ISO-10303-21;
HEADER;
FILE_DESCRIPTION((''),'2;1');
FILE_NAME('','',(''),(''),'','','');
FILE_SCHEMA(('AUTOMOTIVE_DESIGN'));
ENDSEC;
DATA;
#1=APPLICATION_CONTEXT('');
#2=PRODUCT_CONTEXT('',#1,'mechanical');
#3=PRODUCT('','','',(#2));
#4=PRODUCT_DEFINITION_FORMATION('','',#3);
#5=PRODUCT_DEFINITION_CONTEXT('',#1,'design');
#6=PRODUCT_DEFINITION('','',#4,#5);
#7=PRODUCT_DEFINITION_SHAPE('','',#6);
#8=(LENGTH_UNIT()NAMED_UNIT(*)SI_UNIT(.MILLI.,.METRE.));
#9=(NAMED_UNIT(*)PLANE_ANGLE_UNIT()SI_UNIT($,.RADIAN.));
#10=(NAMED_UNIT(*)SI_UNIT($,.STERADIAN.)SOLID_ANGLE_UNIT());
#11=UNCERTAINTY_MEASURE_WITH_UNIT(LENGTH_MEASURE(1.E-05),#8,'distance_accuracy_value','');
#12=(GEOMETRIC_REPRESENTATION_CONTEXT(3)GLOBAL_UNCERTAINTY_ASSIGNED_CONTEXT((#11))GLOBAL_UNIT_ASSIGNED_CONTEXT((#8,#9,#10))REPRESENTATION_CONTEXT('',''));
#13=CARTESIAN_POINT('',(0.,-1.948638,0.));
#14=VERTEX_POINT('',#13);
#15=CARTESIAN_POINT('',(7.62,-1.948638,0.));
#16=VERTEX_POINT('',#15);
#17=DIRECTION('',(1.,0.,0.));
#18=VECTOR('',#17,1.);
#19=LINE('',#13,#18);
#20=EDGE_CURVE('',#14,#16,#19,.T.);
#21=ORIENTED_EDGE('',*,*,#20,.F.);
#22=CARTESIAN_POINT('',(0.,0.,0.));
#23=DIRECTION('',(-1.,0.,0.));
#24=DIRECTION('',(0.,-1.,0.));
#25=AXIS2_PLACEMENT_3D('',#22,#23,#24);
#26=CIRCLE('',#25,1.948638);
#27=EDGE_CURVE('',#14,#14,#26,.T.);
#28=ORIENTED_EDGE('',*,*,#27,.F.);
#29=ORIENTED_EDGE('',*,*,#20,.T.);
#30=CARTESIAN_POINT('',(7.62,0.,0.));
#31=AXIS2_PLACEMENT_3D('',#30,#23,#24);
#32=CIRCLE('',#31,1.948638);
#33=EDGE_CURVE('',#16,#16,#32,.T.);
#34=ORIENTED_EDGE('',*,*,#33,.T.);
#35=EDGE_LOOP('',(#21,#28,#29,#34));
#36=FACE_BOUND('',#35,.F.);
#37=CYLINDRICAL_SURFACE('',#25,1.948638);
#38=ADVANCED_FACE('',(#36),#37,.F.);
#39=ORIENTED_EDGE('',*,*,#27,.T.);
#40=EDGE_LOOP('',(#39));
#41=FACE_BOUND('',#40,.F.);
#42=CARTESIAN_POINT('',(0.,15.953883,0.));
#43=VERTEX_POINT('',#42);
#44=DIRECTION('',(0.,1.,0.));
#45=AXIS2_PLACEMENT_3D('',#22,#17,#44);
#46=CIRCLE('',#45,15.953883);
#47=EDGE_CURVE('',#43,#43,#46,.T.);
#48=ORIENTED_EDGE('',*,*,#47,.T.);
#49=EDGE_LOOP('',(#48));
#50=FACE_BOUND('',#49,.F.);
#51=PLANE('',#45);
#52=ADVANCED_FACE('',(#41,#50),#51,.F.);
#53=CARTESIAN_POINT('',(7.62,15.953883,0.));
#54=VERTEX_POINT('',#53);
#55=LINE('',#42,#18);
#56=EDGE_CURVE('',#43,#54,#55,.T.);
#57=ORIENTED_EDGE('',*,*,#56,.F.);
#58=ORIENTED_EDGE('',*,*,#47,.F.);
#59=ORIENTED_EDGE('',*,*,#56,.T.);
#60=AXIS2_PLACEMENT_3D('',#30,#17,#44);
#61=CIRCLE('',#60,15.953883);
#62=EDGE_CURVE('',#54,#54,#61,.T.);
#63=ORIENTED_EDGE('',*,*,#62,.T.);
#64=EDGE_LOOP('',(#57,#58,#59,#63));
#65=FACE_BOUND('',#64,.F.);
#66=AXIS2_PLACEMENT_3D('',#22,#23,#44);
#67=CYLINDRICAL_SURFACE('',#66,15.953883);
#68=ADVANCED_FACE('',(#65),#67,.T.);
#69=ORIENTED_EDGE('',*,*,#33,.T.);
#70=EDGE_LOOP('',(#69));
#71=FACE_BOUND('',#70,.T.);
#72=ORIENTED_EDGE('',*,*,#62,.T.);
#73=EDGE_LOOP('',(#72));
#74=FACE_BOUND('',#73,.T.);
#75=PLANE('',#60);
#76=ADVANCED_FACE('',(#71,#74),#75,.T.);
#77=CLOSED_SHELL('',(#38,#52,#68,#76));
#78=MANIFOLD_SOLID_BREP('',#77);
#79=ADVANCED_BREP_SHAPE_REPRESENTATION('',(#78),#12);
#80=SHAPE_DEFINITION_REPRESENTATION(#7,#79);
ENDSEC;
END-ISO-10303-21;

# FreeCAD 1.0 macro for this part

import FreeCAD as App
import Part
import Sketcher
Q = App.Units.Quantity

doc = App.newDocument("Part")
body = doc.addObject("PartDesign::Body", "Body")

sketch1 = body.newObject("Sketcher::SketchObject", "Sketch")
sketch1.AttachmentSupport = (doc.getObject("YZ_Plane"), [""])
sketch1.MapMode = "FlatFace"
sketch1.addGeometry(Part.Circle(App.Vector(0, 0, 0), App.Vector(0, 0, 1), 16), False)
sketch1.addConstraint([
    Sketcher.Constraint("Coincident", 0, 3, -1, 1),
    Sketcher.Constraint("Diameter", 0, 31.907766),
])
pad1 = body.newObject("PartDesign::Pad", "Pad")
pad1.Profile = sketch1
pad1.Length = Q("0.3 in")

sketch2 = body.newObject("Sketcher::SketchObject", "Sketch001")
sketch2.AttachmentSupport = (doc.getObject("YZ_Plane"), [""])
sketch2.MapMode = "FlatFace"
sketch2.addGeometry(Part.Circle(App.Vector(0, 0, 0), App.Vector(0, 0, 1), 1.9), False)
sketch2.addConstraint([
    Sketcher.Constraint("Coincident", 0, 3, -1, 1),
    Sketcher.Constraint("Diameter", 0, 3.897276),
])
pocket1 = body.newObject("PartDesign::Pocket", "Pocket")
pocket1.Profile = sketch2
pocket1.Length = Q("1 in")
pocket1.Reversed = True

doc.recompute()
